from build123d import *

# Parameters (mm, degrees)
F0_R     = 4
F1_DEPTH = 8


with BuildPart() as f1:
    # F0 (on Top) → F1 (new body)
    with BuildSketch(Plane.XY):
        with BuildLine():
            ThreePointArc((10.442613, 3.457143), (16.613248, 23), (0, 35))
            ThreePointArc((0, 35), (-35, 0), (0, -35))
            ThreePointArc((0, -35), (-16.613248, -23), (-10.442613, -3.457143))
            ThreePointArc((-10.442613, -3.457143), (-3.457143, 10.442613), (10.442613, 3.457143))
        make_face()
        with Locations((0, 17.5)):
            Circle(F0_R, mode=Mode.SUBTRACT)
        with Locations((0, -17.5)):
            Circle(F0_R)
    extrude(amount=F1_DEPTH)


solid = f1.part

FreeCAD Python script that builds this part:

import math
import FreeCAD as App
import Part
import Sketcher

doc = App.newDocument("Part")
body = doc.addObject("PartDesign::Body", "Body")
body.AllowCompound = True

sketch1 = body.newObject("Sketcher::SketchObject", "Sketch")
sketch1.AttachmentSupport = (doc.getObject("XY_Plane"), [""])
sketch1.MapMode = "FlatFace"
sketch1.addGeometry([
    Part.ArcOfCircle(Part.Circle(App.Vector(0, 17.5, 0), App.Vector(0, 0, 1), 17.5), math.radians(-53.364604), math.radians(90.000001)),
    Part.ArcOfCircle(Part.Circle(App.Vector(0, 0, 0), App.Vector(0, 0, 1), 35), math.radians(90), math.radians(270)),
    Part.ArcOfCircle(Part.Circle(App.Vector(0, -17.5, 0), App.Vector(0, 0, 1), 17.5), math.radians(126.635396), math.radians(270.000001)),
    Part.ArcOfCircle(Part.Circle(App.Vector(0, 0, 0), App.Vector(0, 0, 1), 11), math.radians(18.317699), math.radians(198.317699)),
    Part.Circle(App.Vector(0, 17.5, 0), App.Vector(0, 0, 1), 4),
    Part.Circle(App.Vector(0, -17.5, 0), App.Vector(0, 0, 1), 4),
], False)
sketch1.addConstraint([
    Sketcher.Constraint("Tangent", 0, 2, 1, 1),
    Sketcher.Constraint("Tangent", 1, 2, 2, 2),
    Sketcher.Constraint("Coincident", 2, 1, 3, 2),
    Sketcher.Constraint("Coincident", 3, 1, 0, 1),
    Sketcher.Constraint("Coincident", 1, 3, -1, 1),
    Sketcher.Constraint("Coincident", 3, 3, -1, 1),
    Sketcher.Constraint("Coincident", 4, 3, 0, 3),
    Sketcher.Constraint("Coincident", 5, 3, 2, 3),
    Sketcher.Constraint("Equal", 0, 2),
    Sketcher.Constraint("Equal", 4, 5),
    Sketcher.Constraint("PointOnObject", 0, 3, -2),
    Sketcher.Constraint("PointOnObject", 2, 3, -2),
    Sketcher.Constraint("Diameter", 4, 8.0),
    Sketcher.Constraint("Radius", 1, 35.0),
    Sketcher.Constraint("Radius", 3, 11.0),
    Sketcher.Constraint("Radius", 0, 17.5),
])
pad1 = body.newObject("PartDesign::Pad", "Pad")
pad1.Profile = sketch1
pad1.Length = 8

doc.recompute()
